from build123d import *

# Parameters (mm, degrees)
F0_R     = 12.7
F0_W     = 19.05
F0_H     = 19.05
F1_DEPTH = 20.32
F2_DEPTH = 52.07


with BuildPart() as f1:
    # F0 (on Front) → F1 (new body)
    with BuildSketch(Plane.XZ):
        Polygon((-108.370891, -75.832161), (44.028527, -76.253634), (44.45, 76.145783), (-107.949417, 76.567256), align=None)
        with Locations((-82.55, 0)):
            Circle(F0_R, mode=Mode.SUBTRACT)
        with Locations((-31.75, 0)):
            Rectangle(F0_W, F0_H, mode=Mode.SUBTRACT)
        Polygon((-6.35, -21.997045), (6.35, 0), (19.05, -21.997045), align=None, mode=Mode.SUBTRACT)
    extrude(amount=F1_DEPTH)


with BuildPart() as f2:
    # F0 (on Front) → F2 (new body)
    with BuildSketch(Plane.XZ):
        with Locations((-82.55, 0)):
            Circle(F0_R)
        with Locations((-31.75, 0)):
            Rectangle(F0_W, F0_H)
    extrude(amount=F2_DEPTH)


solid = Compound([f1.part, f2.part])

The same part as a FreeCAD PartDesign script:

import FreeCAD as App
import Part
import Sketcher

V = App.Vector
Q = App.Units.Quantity


def add_polygon(sketch, points):
    """Adds a closed chain of lines whose ends are joined by coincident constraints."""
    first, n = sketch.GeometryCount, len(points)
    for a, b in zip(points, points[1:] + points[:1]):
        sketch.addGeometry(Part.LineSegment(App.Vector(*a, 0), App.Vector(*b, 0)), False)
    for i in range(n):
        sketch.addConstraint(Sketcher.Constraint("Coincident", first + i, 2, first + (i + 1) % n, 1))

doc = App.newDocument("Part")
body = doc.addObject("PartDesign::Body", "Body")

sketch1 = body.newObject("Sketcher::SketchObject", "Sketch")
sketch1.AttachmentSupport = (doc.getObject("XZ_Plane"), [""])
sketch1.MapMode = "FlatFace"
add_polygon(sketch1, [(-108.370891, -75.832161), (44.028527, -76.253634), (44.45, 76.145783), (-107.949417, 76.567256)])
add_polygon(sketch1, [(19.05, -21.997045), (-6.35, -21.997045), (6.35, 0)])
sketch1.addGeometry(Part.Circle(V(-82.55, 0, 0), V(0, 0, 1), 12.7), False)
add_polygon(sketch1, [(-22.225, -9.525), (-41.275, -9.525), (-41.275, 9.525), (-22.225, 9.525)])
sketch1.addConstraint(Sketcher.Constraint("Horizontal", 4))
sketch1.addConstraint(Sketcher.Constraint("Horizontal", 8))
sketch1.addConstraint(Sketcher.Constraint("Vertical", 9))
sketch1.addConstraint(Sketcher.Constraint("Horizontal", 10))
sketch1.addConstraint(Sketcher.Constraint("Vertical", 11))
sketch1.addConstraint(Sketcher.Constraint("PointOnObject", 7, 3, -1))
sketch1.addConstraint(Sketcher.Constraint("PointOnObject", 5, 2, -1))
sketch1.addConstraint(Sketcher.Constraint("Perpendicular", 0, 1))
sketch1.addConstraint(Sketcher.Constraint("Perpendicular", 1, 2))
sketch1.addConstraint(Sketcher.Constraint("Perpendicular", 2, 3))
sketch1.addConstraint(Sketcher.Constraint("Equal", 10, 9))
sketch1.addConstraint(Sketcher.Constraint("Equal", 0, 1))
sketch1.addConstraint(Sketcher.Constraint("Equal", 5, 6))
sketch1.addConstraint(Sketcher.Constraint("Diameter", 7, Q("1 in")))
sketch1.addConstraint(Sketcher.Constraint("DistanceX", 4, 2, 4, 1, Q("1 in")))
sketch1.addConstraint(Sketcher.Constraint("Distance", 0, Q("6 in")))
sketch1.addConstraint(Sketcher.Constraint("Distance", 5, Q("1 in")))
sketch1.addConstraint(Sketcher.Constraint("DistanceX", 7, 3, 1, 2, Q("5 in")))
sketch1.addConstraint(Sketcher.Constraint("DistanceX", 7, 3, 4, 2, Q("3 in")))
sketch1.addConstraint(Sketcher.Constraint("DistanceX", 8, 2, 8, 1, Q("0.75 in")))
sketch1.addConstraint(Sketcher.Constraint("DistanceX", 7, 3, -1, 1, Q("3.25 in")))
sketch1.addConstraint(Sketcher.Constraint("DistanceX", 8, 2, -1, 1, Q("1.625 in")))
sketch1.addConstraint(Sketcher.Constraint("DistanceY", 8, 2, -1, 1, Q("0.375 in")))
sketch1.addConstraint(Sketcher.Constraint("DistanceY", 4, 2, 2, 2, 98.564301))
sketch1.addConstraint(Sketcher.Constraint("DistanceX", 3, 2, -1, 1, 108.370891))
pad1 = body.newObject("PartDesign::Pad", "Pad")
pad1.Profile = sketch1
pad1.Length = Q("0.8 in")
body2 = doc.addObject("PartDesign::Body", "Body001")
body2.AllowCompound = True

sketch2 = body2.newObject("Sketcher::SketchObject", "Sketch001")
sketch2.AttachmentSupport = (doc.getObject("XZ_Plane001"), [""])
sketch2.MapMode = "FlatFace"
sketch2.addGeometry(Part.Circle(V(-82.55, 0, 0), V(0, 0, 1), 12.7), False)
add_polygon(sketch2, [(-41.275, 9.525), (-41.275, -9.525), (-22.225, -9.525), (-22.225, 9.525)])
sketch2.addConstraint(Sketcher.Constraint("Vertical", 1))
sketch2.addConstraint(Sketcher.Constraint("Horizontal", 2))
sketch2.addConstraint(Sketcher.Constraint("Vertical", 3))
sketch2.addConstraint(Sketcher.Constraint("Horizontal", 4))
sketch2.addConstraint(Sketcher.Constraint("PointOnObject", 0, 3, -1))
sketch2.addConstraint(Sketcher.Constraint("Equal", 4, 1))
sketch2.addConstraint(Sketcher.Constraint("Diameter", 0, Q("1 in")))
sketch2.addConstraint(Sketcher.Constraint("DistanceX", 2, 1, 2, 2, Q("0.75 in")))
sketch2.addConstraint(Sketcher.Constraint("DistanceX", 0, 3, -1, 1, Q("3.25 in")))
sketch2.addConstraint(Sketcher.Constraint("DistanceX", 1, 2, -1, 1, Q("1.625 in")))
sketch2.addConstraint(Sketcher.Constraint("DistanceY", 1, 2, -1, 1, Q("0.375 in")))
pad2 = body2.newObject("PartDesign::Pad", "Pad001")
pad2.Profile = sketch2
pad2.Length = Q("2.05 in")

doc.recompute()
